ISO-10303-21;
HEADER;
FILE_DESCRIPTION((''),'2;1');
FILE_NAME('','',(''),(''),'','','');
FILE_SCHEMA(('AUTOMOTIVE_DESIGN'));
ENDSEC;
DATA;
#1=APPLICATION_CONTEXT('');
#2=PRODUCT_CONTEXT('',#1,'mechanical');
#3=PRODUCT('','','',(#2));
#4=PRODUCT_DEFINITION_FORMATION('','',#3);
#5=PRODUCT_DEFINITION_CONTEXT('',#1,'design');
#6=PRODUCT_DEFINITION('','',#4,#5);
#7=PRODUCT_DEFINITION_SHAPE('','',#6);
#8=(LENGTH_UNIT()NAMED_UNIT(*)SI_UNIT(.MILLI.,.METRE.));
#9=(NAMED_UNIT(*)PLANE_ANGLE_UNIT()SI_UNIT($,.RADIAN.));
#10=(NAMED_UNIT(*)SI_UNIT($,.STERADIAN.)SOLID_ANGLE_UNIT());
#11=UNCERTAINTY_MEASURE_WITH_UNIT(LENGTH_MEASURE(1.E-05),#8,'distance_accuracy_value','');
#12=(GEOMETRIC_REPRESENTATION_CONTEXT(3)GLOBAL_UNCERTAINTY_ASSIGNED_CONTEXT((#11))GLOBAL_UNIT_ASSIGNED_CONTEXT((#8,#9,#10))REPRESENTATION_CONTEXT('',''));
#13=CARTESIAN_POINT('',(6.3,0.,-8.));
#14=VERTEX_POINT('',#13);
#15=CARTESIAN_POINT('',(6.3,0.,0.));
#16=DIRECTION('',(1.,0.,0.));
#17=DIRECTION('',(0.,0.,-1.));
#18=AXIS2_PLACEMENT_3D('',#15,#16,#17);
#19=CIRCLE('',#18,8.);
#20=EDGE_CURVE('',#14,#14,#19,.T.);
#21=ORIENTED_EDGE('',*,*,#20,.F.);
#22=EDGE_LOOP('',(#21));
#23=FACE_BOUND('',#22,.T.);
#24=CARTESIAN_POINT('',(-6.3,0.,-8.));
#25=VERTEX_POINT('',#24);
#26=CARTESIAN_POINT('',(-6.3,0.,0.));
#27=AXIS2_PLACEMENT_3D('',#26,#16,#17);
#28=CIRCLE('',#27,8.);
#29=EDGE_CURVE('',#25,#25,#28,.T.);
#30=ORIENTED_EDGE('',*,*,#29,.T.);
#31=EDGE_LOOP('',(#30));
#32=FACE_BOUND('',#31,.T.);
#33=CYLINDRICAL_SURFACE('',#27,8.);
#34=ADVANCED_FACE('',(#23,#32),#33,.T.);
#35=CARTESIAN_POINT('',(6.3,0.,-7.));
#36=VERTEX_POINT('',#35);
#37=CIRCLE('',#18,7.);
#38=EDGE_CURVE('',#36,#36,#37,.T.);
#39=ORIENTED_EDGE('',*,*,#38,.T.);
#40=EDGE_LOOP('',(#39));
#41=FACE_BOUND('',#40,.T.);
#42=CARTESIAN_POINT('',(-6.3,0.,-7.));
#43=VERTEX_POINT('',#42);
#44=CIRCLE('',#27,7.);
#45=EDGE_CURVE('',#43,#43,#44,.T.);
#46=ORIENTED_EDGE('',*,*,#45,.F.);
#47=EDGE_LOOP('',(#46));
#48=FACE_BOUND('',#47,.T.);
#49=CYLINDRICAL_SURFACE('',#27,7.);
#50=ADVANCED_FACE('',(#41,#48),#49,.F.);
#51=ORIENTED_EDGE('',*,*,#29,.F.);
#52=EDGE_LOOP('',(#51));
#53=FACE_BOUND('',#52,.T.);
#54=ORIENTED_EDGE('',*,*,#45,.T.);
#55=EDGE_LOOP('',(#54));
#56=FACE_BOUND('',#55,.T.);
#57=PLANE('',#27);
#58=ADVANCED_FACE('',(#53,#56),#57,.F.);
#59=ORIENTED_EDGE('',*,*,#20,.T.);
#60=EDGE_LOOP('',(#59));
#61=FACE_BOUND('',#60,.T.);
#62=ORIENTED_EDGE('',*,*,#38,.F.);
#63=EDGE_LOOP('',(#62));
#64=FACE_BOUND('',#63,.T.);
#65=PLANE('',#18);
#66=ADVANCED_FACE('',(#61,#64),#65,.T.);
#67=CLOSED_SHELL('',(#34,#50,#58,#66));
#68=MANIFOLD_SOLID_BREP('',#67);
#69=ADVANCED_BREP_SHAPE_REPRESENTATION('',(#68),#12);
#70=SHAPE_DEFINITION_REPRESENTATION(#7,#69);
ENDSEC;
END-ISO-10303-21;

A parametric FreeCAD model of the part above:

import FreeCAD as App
import Part
import Sketcher

doc = App.newDocument("Part")
params = doc.addObject("Spreadsheet::Sheet", "Params")
for row, (alias, value) in enumerate([
    ("sketch1_diameter", "16 mm"),
    ("sketch1_diameter2", "14 mm"),
    ("pad1_length", "6.3 mm"),
    ("pad1_length2", "6.3 mm"),
], start=1):
    params.set(f"A{row}", alias)
    params.set(f"B{row}", "=" + value)
    params.setAlias(f"B{row}", alias)

body = doc.addObject("PartDesign::Body", "Body")

sketch1 = body.newObject("Sketcher::SketchObject", "Sketch")
sketch1.AttachmentSupport = (doc.getObject("YZ_Plane"), [""])
sketch1.MapMode = "FlatFace"
sketch1.addGeometry(Part.Circle(App.Vector(0, 0, 0), App.Vector(0, 0, 1), 8), False)
sketch1.addGeometry(Part.Circle(App.Vector(0, 0, 0), App.Vector(0, 0, 1), 7), False)
sketch1.addConstraint(Sketcher.Constraint("Coincident", 0, 3, -1, 1))
sketch1.addConstraint(Sketcher.Constraint("Coincident", 1, 3, -1, 1))
sketch1.addConstraint(Sketcher.Constraint("Diameter", 0, 16.0))
sketch1.addConstraint(Sketcher.Constraint("Diameter", 1, 14.0))
sketch1.setExpression("Constraints[2]", "Params.sketch1_diameter")
sketch1.setExpression("Constraints[3]", "Params.sketch1_diameter2")
pad1 = body.newObject("PartDesign::Pad", "Pad")
pad1.Profile = sketch1
pad1.Type = "TwoLengths"
pad1.setExpression("Length", "Params.pad1_length")
pad1.setExpression("Length2", "Params.pad1_length2")

doc.recompute()
